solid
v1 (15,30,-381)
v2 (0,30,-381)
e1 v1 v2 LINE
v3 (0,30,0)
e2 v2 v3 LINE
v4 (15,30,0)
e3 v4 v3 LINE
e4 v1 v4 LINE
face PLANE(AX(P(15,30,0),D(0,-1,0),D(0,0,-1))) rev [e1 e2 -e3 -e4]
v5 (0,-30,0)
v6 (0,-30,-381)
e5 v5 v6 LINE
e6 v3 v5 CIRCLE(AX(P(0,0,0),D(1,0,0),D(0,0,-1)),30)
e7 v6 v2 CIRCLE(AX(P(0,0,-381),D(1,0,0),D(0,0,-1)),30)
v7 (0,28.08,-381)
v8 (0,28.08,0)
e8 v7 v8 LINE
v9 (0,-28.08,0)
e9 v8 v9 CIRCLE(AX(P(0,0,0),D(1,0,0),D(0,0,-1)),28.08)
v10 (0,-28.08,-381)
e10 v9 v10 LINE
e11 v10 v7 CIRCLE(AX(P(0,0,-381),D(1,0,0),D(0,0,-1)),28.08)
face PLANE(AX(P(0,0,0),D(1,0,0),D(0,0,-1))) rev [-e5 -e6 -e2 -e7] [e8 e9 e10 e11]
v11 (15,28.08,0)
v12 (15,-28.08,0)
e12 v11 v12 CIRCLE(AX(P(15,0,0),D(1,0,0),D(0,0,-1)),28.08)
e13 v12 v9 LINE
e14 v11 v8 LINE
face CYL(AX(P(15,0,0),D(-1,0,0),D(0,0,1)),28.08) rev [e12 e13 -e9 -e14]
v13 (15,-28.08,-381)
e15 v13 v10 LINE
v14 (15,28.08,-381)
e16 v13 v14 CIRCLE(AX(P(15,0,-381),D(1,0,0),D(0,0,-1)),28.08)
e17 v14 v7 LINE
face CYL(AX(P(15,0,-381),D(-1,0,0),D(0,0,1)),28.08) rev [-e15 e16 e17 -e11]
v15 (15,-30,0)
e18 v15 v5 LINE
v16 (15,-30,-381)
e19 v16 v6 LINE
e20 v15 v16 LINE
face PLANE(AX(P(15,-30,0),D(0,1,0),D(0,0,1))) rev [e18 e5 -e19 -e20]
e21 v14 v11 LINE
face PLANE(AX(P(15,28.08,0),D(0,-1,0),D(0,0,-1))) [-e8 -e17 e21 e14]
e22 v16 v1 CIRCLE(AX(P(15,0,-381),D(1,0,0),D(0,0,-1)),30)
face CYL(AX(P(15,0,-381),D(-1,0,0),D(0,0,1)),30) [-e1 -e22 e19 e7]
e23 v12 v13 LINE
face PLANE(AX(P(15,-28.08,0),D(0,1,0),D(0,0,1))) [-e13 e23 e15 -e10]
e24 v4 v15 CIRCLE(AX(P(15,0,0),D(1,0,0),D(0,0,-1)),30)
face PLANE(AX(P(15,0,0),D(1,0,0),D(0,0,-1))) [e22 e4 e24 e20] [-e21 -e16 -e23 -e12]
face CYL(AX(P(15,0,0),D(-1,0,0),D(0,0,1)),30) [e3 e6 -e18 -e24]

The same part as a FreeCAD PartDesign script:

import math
import FreeCAD as App
import Part
import Sketcher
Q = App.Units.Quantity

doc = App.newDocument("Part")
body = doc.addObject("PartDesign::Body", "Body")

# Sketch on YZ plane
sketch1 = body.newObject("Sketcher::SketchObject", "Sketch")
sketch1.AttachmentSupport = (doc.getObject("YZ_Plane"), [""])
sketch1.MapMode = "FlatFace"
sketch1.addGeometry([
    Part.LineSegment(App.Vector(30, -381, 0), App.Vector(30, 0, 0)),  # 0
    Part.ArcOfCircle(Part.Circle(App.Vector(0, 0, 0), App.Vector(0, 0, 1), 30), math.radians(0), math.radians(180)),  # 1
    Part.LineSegment(App.Vector(-30, 0, 0), App.Vector(-30, -381, 0)),  # 2
    Part.ArcOfCircle(Part.Circle(App.Vector(0, -381, 0), App.Vector(0, 0, 1), 30), math.radians(180), math.radians(360)),  # 3
    Part.LineSegment(App.Vector(28, 0, 0), App.Vector(28, -381, 0)),  # 4
    Part.ArcOfCircle(Part.Circle(App.Vector(0, -381, 0), App.Vector(0, 0, 1), 28), math.radians(180), math.radians(360)),  # 5
    Part.LineSegment(App.Vector(-28, -381, 0), App.Vector(-28, 0, 0)),  # 6
    Part.ArcOfCircle(Part.Circle(App.Vector(0, 0, 0), App.Vector(0, 0, 1), 28), math.radians(0), math.radians(180)),  # 7
], False)
sketch1.addConstraint([
    Sketcher.Constraint("Tangent", 0, 2, 1, 1),
    Sketcher.Constraint("Tangent", 1, 2, 2, 1),
    Sketcher.Constraint("Tangent", 2, 2, 3, 1),
    Sketcher.Constraint("Tangent", 3, 2, 0, 1),
    Sketcher.Constraint("Tangent", 4, 2, 5, 2),
    Sketcher.Constraint("Tangent", 5, 1, 6, 1),
    Sketcher.Constraint("Tangent", 6, 2, 7, 2),
    Sketcher.Constraint("Tangent", 7, 1, 4, 1),
    Sketcher.Constraint("Vertical", 0),
    Sketcher.Constraint("Vertical", 2),
    Sketcher.Constraint("Vertical", 4),
    Sketcher.Constraint("Vertical", 6),
    Sketcher.Constraint("Coincident", 1, 3, -1, 1),
    Sketcher.Constraint("Coincident", 7, 3, -1, 1),
    Sketcher.Constraint("Horizontal", 5, 3, 2, 2),
    Sketcher.Constraint("Radius", 1, Q("30 mm")),
    Sketcher.Constraint("DistanceY", 0, 1, 0, 2, Q("381 mm")),
    Sketcher.Constraint("Radius", 5, Q("28.08 mm")),
])
pad1 = body.newObject("PartDesign::Pad", "Pad")
pad1.Profile = sketch1
pad1.Length = 15

doc.recompute()
